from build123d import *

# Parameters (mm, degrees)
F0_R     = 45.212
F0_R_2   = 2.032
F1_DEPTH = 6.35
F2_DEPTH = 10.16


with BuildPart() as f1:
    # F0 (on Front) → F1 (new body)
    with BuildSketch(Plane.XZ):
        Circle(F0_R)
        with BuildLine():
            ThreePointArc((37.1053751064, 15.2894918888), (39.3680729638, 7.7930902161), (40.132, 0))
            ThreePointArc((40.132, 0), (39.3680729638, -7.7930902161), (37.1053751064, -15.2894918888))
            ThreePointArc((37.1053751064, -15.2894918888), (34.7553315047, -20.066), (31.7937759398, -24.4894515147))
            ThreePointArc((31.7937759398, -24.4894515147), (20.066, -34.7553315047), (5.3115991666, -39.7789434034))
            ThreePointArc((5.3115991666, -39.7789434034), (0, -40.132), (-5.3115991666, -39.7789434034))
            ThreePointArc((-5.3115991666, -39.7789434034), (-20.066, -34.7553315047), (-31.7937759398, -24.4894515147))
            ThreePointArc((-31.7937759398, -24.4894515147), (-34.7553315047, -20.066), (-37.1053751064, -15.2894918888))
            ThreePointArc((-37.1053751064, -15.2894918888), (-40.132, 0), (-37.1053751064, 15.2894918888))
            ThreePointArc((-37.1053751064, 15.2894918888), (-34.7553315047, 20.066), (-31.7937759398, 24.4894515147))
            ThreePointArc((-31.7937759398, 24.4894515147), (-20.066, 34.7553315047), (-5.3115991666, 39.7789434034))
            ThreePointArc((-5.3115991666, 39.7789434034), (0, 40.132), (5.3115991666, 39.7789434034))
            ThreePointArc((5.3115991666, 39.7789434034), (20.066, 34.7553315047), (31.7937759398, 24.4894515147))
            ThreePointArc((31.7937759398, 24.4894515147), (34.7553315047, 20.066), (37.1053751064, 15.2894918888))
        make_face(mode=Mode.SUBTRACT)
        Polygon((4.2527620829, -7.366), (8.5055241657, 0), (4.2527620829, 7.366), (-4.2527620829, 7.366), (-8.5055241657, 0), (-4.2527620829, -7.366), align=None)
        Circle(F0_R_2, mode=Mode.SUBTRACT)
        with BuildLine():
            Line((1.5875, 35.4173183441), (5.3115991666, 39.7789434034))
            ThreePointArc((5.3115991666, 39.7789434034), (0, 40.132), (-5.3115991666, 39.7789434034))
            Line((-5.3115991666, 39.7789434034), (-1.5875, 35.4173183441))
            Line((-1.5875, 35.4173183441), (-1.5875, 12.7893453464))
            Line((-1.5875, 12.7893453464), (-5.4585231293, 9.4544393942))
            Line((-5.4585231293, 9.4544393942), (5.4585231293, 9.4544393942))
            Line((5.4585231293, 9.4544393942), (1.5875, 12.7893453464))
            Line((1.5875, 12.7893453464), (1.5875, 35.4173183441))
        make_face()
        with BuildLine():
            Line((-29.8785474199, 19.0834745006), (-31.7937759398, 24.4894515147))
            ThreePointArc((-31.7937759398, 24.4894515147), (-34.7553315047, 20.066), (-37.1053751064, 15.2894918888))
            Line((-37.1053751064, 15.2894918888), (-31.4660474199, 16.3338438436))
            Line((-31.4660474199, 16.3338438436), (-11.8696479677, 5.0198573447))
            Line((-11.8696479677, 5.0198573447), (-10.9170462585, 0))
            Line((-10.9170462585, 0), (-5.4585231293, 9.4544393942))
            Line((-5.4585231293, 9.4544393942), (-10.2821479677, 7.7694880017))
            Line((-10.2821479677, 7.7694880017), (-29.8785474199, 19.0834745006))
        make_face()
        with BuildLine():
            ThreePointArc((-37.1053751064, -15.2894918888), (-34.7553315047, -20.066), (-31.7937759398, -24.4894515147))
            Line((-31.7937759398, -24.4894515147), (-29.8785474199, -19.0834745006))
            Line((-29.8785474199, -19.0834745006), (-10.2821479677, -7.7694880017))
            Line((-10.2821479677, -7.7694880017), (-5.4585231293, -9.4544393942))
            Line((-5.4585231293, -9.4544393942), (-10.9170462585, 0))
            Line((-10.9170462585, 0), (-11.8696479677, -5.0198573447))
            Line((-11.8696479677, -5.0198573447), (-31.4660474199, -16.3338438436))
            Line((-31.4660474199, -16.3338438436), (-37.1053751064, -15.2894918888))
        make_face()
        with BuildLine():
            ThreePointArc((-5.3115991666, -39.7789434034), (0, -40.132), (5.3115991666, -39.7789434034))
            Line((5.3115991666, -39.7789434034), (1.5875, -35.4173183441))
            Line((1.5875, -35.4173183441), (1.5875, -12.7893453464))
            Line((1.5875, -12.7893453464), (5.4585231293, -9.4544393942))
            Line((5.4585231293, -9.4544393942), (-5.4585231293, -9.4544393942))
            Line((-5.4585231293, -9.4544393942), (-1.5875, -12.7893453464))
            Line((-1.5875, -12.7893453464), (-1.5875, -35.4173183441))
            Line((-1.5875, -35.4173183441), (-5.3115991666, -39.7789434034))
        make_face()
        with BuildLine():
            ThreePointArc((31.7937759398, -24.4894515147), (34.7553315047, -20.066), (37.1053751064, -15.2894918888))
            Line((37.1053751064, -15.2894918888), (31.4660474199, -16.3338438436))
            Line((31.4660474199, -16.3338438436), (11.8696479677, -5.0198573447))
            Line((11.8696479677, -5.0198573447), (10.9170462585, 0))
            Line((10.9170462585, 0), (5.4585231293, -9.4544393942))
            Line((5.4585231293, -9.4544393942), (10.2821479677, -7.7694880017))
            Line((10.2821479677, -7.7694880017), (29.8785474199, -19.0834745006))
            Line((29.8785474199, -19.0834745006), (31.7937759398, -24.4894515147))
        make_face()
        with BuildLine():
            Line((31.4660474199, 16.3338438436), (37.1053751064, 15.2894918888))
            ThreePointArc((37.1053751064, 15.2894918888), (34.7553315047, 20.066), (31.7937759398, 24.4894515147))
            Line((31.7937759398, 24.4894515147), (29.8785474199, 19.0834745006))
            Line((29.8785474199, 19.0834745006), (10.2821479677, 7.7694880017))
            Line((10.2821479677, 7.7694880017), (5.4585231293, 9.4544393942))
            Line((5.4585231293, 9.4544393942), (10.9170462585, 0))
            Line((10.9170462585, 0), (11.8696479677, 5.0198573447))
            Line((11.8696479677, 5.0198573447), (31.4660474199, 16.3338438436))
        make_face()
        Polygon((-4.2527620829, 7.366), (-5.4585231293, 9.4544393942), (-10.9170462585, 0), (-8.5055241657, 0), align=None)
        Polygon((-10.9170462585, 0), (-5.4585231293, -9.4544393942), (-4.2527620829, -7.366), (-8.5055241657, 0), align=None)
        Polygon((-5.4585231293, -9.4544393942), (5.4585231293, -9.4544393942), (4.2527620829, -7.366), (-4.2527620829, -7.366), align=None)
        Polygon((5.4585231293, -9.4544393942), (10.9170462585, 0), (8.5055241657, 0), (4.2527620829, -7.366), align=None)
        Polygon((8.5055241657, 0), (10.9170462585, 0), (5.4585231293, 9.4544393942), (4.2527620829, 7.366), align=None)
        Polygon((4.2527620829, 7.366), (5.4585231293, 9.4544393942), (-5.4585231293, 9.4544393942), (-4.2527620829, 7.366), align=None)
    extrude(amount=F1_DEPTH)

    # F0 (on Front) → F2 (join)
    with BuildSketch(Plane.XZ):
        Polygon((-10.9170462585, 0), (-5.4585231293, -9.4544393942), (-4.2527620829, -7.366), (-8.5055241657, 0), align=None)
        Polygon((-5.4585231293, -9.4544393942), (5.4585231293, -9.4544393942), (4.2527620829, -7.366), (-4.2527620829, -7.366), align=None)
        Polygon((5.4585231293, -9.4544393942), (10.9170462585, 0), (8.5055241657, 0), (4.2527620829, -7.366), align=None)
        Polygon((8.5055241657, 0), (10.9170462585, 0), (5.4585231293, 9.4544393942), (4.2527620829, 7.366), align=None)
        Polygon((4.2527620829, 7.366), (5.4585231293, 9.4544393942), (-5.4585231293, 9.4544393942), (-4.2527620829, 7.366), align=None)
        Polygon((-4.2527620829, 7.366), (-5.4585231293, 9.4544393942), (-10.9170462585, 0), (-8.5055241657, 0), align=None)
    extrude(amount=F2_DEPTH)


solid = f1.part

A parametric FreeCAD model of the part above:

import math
import FreeCAD as App
import Part
import Sketcher

V = App.Vector
Q = App.Units.Quantity

doc = App.newDocument("Part")
params = doc.addObject("Spreadsheet::Sheet", "Params")
for row, (alias, value) in enumerate([
    ("sketch1_diameter", "3.56 in"),
    ("sketch1_diameter2", "0.16 in"),
    ("sketch1_radius", "1.58 in"),
    ("pad1_length", "0.25 in"),
    ("pad2_length", "0.4 in"),
], start=1):
    params.set(f"A{row}", alias)
    params.set(f"B{row}", "=" + value)
    params.setAlias(f"B{row}", alias)

body = doc.addObject("PartDesign::Body", "Body")

# Sketch on XZ plane
sketch1 = body.newObject("Sketcher::SketchObject", "Sketch")
sketch1.AttachmentSupport = (doc.getObject("XZ_Plane"), [""])
sketch1.MapMode = "FlatFace"
sketch1.addGeometry([
    Part.Circle(V(0, 0, 0), V(0, 0, 1), 45.212),  # 0
    Part.LineSegment(V(-10.282148, -7.769488, 0), V(-5.458523, -9.454439, 0)),  # 1
    Part.LineSegment(V(-5.458523, -9.454439, 0), V(-1.5875, -12.789345, 0)),  # 2
    Part.LineSegment(V(-1.5875, -12.789345, 0), V(-1.5875, -35.417318, 0)),  # 3
    Part.LineSegment(V(-1.5875, -35.417318, 0), V(-5.311599, -39.778943, 0)),  # 4
    Part.ArcOfCircle(Part.Circle(V(0, 0, 0), V(0, 0, 1), 40.132), math.radians(-142.394403), math.radians(-97.605597)),  # 5
    Part.LineSegment(V(-31.793776, -24.489452, 0), V(-29.878547, -19.083475, 0)),  # 6
    Part.LineSegment(V(-29.878547, -19.083475, 0), V(-10.282148, -7.769488, 0)),  # 7
    Part.LineSegment(V(-11.869648, 5.019857, 0), V(-10.917046, 0, 0)),  # 8
    Part.LineSegment(V(-10.917046, 0, 0), V(-11.869648, -5.019857, 0)),  # 9
    Part.LineSegment(V(-11.869648, -5.019857, 0), V(-31.466047, -16.333844, 0)),  # 10
    Part.LineSegment(V(-31.466047, -16.333844, 0), V(-37.105375, -15.289492, 0)),  # 11
    Part.ArcOfCircle(Part.Circle(V(0, 0, 0), V(0, 0, 1), 40.132), math.radians(157.605597), math.radians(202.394403)),  # 12
    Part.LineSegment(V(-37.105375, 15.289492, 0), V(-31.466047, 16.333844, 0)),  # 13
    Part.LineSegment(V(-31.466047, 16.333844, 0), V(-11.869648, 5.019857, 0)),  # 14
    Part.LineSegment(V(1.5875, -12.789345, 0), V(5.458523, -9.454439, 0)),  # 15
    Part.LineSegment(V(5.458523, -9.454439, 0), V(10.282148, -7.769488, 0)),  # 16
    Part.LineSegment(V(10.282148, -7.769488, 0), V(29.878547, -19.083475, 0)),  # 17
    Part.LineSegment(V(29.878547, -19.083475, 0), V(31.793776, -24.489452, 0)),  # 18
    Part.ArcOfCircle(Part.Circle(V(0, 0, 0), V(0, 0, 1), 40.132), math.radians(-82.394403), math.radians(-37.605597)),  # 19
    Part.LineSegment(V(5.311599, -39.778943, 0), V(1.5875, -35.417318, 0)),  # 20
    Part.LineSegment(V(1.5875, -35.417318, 0), V(1.5875, -12.789345, 0)),  # 21
    Part.Circle(V(0, 0, 0), V(0, 0, 1), 2.032),  # 22
    Part.LineSegment(V(-1.5875, 12.789345, 0), V(-5.458523, 9.454439, 0)),  # 23
    Part.LineSegment(V(-5.458523, 9.454439, 0), V(-10.282148, 7.769488, 0)),  # 24
    Part.LineSegment(V(-10.282148, 7.769488, 0), V(-29.878547, 19.083475, 0)),  # 25
    Part.LineSegment(V(-29.878547, 19.083475, 0), V(-31.793776, 24.489452, 0)),  # 26
    Part.ArcOfCircle(Part.Circle(V(0, 0, 0), V(0, 0, 1), 40.132), math.radians(97.605597), math.radians(142.394403)),  # 27
    Part.LineSegment(V(-5.311599, 39.778943, 0), V(-1.5875, 35.417318, 0)),  # 28
    Part.LineSegment(V(-1.5875, 35.417318, 0), V(-1.5875, 12.789345, 0)),  # 29
    Part.LineSegment(V(11.869648, -5.019857, 0), V(10.917046, 0, 0)),  # 30
    Part.LineSegment(V(10.917046, 0, 0), V(11.869648, 5.019857, 0)),  # 31
    Part.LineSegment(V(11.869648, 5.019857, 0), V(31.466047, 16.333844, 0)),  # 32
    Part.LineSegment(V(31.466047, 16.333844, 0), V(37.105375, 15.289492, 0)),  # 33
    Part.ArcOfCircle(Part.Circle(V(0, 0, 0), V(0, 0, 1), 40.132), math.radians(0), math.radians(22.394403)),  # 34
    Part.ArcOfCircle(Part.Circle(V(0, 0, 0), V(0, 0, 1), 40.132), math.radians(-22.394403), math.radians(0)),  # 35
    Part.LineSegment(V(37.105375, -15.289492, 0), V(31.466047, -16.333844, 0)),  # 36
    Part.LineSegment(V(31.466047, -16.333844, 0), V(11.869648, -5.019857, 0)),  # 37
    Part.LineSegment(V(10.282148, 7.769488, 0), V(5.458523, 9.454439, 0)),  # 38
    Part.LineSegment(V(5.458523, 9.454439, 0), V(1.5875, 12.789345, 0)),  # 39
    Part.LineSegment(V(1.5875, 12.789345, 0), V(1.5875, 35.417318, 0)),  # 40
    Part.LineSegment(V(1.5875, 35.417318, 0), V(5.311599, 39.778943, 0)),  # 41
    Part.ArcOfCircle(Part.Circle(V(0, 0, 0), V(0, 0, 1), 40.132), math.radians(37.605597), math.radians(82.394403)),  # 42
    Part.LineSegment(V(31.793776, 24.489452, 0), V(29.878547, 19.083475, 0)),  # 43
    Part.LineSegment(V(29.878547, 19.083475, 0), V(10.282148, 7.769488, 0)),  # 44
], False)
sketch1.addConstraint([
    Sketcher.Constraint("Coincident", 1, 2, 2, 1),
    Sketcher.Constraint("Coincident", 2, 2, 3, 1),
    Sketcher.Constraint("Coincident", 3, 2, 4, 1),
    Sketcher.Constraint("Coincident", 4, 2, 5, 2),
    Sketcher.Constraint("Coincident", 5, 1, 6, 1),
    Sketcher.Constraint("Coincident", 6, 2, 7, 1),
    Sketcher.Constraint("Coincident", 7, 2, 1, 1),
    Sketcher.Constraint("Coincident", 8, 2, 9, 1),
    Sketcher.Constraint("Coincident", 9, 2, 10, 1),
    Sketcher.Constraint("Coincident", 10, 2, 11, 1),
    Sketcher.Constraint("Coincident", 11, 2, 12, 2),
    Sketcher.Constraint("Coincident", 12, 1, 13, 1),
    Sketcher.Constraint("Coincident", 13, 2, 14, 1),
    Sketcher.Constraint("Coincident", 14, 2, 8, 1),
    Sketcher.Constraint("Coincident", 15, 2, 16, 1),
    Sketcher.Constraint("Coincident", 16, 2, 17, 1),
    Sketcher.Constraint("Coincident", 17, 2, 18, 1),
    Sketcher.Constraint("Coincident", 18, 2, 19, 2),
    Sketcher.Constraint("Coincident", 19, 1, 20, 1),
    Sketcher.Constraint("Coincident", 20, 2, 21, 1),
    Sketcher.Constraint("Coincident", 21, 2, 15, 1),
    Sketcher.Constraint("Coincident", 23, 2, 24, 1),
    Sketcher.Constraint("Coincident", 24, 2, 25, 1),
    Sketcher.Constraint("Coincident", 25, 2, 26, 1),
    Sketcher.Constraint("Coincident", 26, 2, 27, 2),
    Sketcher.Constraint("Coincident", 27, 1, 28, 1),
    Sketcher.Constraint("Coincident", 28, 2, 29, 1),
    Sketcher.Constraint("Coincident", 29, 2, 23, 1),
    Sketcher.Constraint("Coincident", 30, 2, 31, 1),
    Sketcher.Constraint("Coincident", 31, 2, 32, 1),
    Sketcher.Constraint("Coincident", 32, 2, 33, 1),
    Sketcher.Constraint("Coincident", 33, 2, 34, 2),
    Sketcher.Constraint("Tangent", 34, 1, 35, 2),
    Sketcher.Constraint("Coincident", 35, 1, 36, 1),
    Sketcher.Constraint("Coincident", 36, 2, 37, 1),
    Sketcher.Constraint("Coincident", 37, 2, 30, 1),
    Sketcher.Constraint("Coincident", 38, 2, 39, 1),
    Sketcher.Constraint("Coincident", 39, 2, 40, 1),
    Sketcher.Constraint("Coincident", 40, 2, 41, 1),
    Sketcher.Constraint("Coincident", 41, 2, 42, 2),
    Sketcher.Constraint("Coincident", 42, 1, 43, 1),
    Sketcher.Constraint("Coincident", 43, 2, 44, 1),
    Sketcher.Constraint("Coincident", 44, 2, 38, 1),
    Sketcher.Constraint("Vertical", 3),
    Sketcher.Constraint("Vertical", 21),
    Sketcher.Constraint("Vertical", 29),
    Sketcher.Constraint("Vertical", 40),
    Sketcher.Constraint("Coincident", 0, 3, -1, 1),
    Sketcher.Constraint("Coincident", 5, 3, -1, 1),
    Sketcher.Constraint("Coincident", 12, 3, -1, 1),
    Sketcher.Constraint("Coincident", 19, 3, -1, 1),
    Sketcher.Constraint("Coincident", 22, 3, -1, 1),
    Sketcher.Constraint("Coincident", 27, 3, -1, 1),
    Sketcher.Constraint("Coincident", 34, 3, -1, 1),
    Sketcher.Constraint("Coincident", 42, 3, -1, 1),
    Sketcher.Constraint("Equal", 5, 12),
    Sketcher.Constraint("Equal", 12, 19),
    Sketcher.Constraint("Equal", 19, 27),
    Sketcher.Constraint("Equal", 27, 34),
    Sketcher.Constraint("Equal", 34, 35),
    Sketcher.Constraint("Equal", 35, 42),
    Sketcher.Constraint("Symmetric", 15, 2, 23, 2, -1, 1),
    Sketcher.Constraint("Symmetric", 16, 2, 24, 2, -1, 1),
    Sketcher.Constraint("Symmetric", 17, 2, 25, 2, -1, 1),
    Sketcher.Constraint("Symmetric", 20, 2, 28, 2, -1, 1),
    Sketcher.Constraint("Symmetric", 8, 2, 30, 2, -1, 1),
    Sketcher.Constraint("Symmetric", 9, 2, 31, 2, -1, 1),
    Sketcher.Constraint("Symmetric", 10, 2, 32, 2, -1, 1),
    Sketcher.Constraint("Symmetric", 13, 2, 36, 2, -1, 1),
    Sketcher.Constraint("Symmetric", 14, 2, 37, 2, -1, 1),
    Sketcher.Constraint("Symmetric", 1, 2, 38, 2, -1, 1),
    Sketcher.Constraint("Symmetric", 2, 2, 39, 2, -1, 1),
    Sketcher.Constraint("Symmetric", 6, 2, 43, 2, -1, 1),
    Sketcher.Constraint("Symmetric", 7, 2, 44, 2, -1, 1),
    Sketcher.Constraint("Symmetric", 1, 2, 15, 2, -2),
    Sketcher.Constraint("Symmetric", 7, 2, 16, 2, -2),
    Sketcher.Constraint("Symmetric", 6, 2, 17, 2, -2),
    Sketcher.Constraint("Symmetric", 3, 2, 20, 2, -2),
    Sketcher.Constraint("Symmetric", 14, 2, 31, 2, -2),
    Sketcher.Constraint("Symmetric", 13, 2, 32, 2, -2),
    Sketcher.Constraint("PointOnObject", 8, 2, -1),
    Sketcher.Constraint("PointOnObject", 34, 1, -1),
    Sketcher.Constraint("Parallel", 7, 10),
    Sketcher.Constraint("Parallel", 15, 23),
    Sketcher.Constraint("Parallel", 18, 26),
    Sketcher.Constraint("Parallel", 20, 28),
    Sketcher.Constraint("Parallel", 11, 33),
    Sketcher.Constraint("Parallel", 13, 36),
    Sketcher.Constraint("Parallel", 4, 41),
    Sketcher.Constraint("Parallel", 6, 43),
    Sketcher.Constraint("Horizontal", 5, 1, 18, 2),
    Sketcher.Constraint("Horizontal", 4, 2, 19, 1),
    Sketcher.Constraint("Horizontal", 2, 2, 21, 2),
    Sketcher.Constraint("Horizontal", 12, 1, 33, 2),
    Sketcher.Constraint("Horizontal", 28, 2, 40, 2),
    Sketcher.Constraint("Equal", 1, 2),
    Sketcher.Constraint("Equal", 4, 6),
    Sketcher.Constraint("Equal", 2, 8),
    Sketcher.Constraint("Equal", 7, 10),
    Sketcher.Constraint("Equal", 6, 11),
    Sketcher.Constraint("Diameter", 0, Q("3.56 in")),
    Sketcher.Constraint("Diameter", 22, Q("0.16 in")),
    Sketcher.Constraint("Radius", 5, Q("1.58 in")),
    Sketcher.Constraint("Angle", 7, Q("30 deg")),
    Sketcher.Constraint("DistanceX", 2, 2, -1, 1, Q("0.0625 in")),
    Sketcher.Constraint("DistanceX", 9, 2, 7, 2, Q("0.0625 in")),
    Sketcher.Constraint("DistanceY", 4, 2, -1, 1, Q("1.5661001 in")),
    Sketcher.Constraint("DistanceY", 4, 2, 2, 2, 26.989598),
    Sketcher.Constraint("DistanceX", 8, 2, 7, 2, 0.634898),
    Sketcher.Constraint("DistanceX", 10, 2, 9, 2, 19.596399),
    Sketcher.Constraint("DistanceX", 11, 2, 5, 1, 5.311599),
    Sketcher.Constraint("DistanceY", 9, 2, 13, 2, 21.353701),
    Sketcher.Constraint("DistanceY", 3, 2, 3, 1, 22.627973),
    Sketcher.Constraint("DistanceY", 1, 2, -1, 1, 9.454439),
])
sketch1.setExpression("Constraints[100]", "Params.sketch1_diameter")
sketch1.setExpression("Constraints[101]", "Params.sketch1_diameter2")
sketch1.setExpression("Constraints[102]", "Params.sketch1_radius")
pad1 = body.newObject("PartDesign::Pad", "Pad")
pad1.Profile = sketch1
pad1.setExpression("Length", "Params.pad1_length")

# Sketch on XZ plane
sketch2 = body.newObject("Sketcher::SketchObject", "Sketch001")
sketch2.AttachmentSupport = (doc.getObject("XZ_Plane"), [""])
sketch2.MapMode = "FlatFace"
sketch2.addGeometry([
    Part.LineSegment(V(-10.917046, 0, 0), V(-5.458523, -9.454439, 0)),  # 0
    Part.LineSegment(V(-5.458523, -9.454439, 0), V(5.458523, -9.454439, 0)),  # 1
    Part.LineSegment(V(5.458523, -9.454439, 0), V(10.917046, 0, 0)),  # 2
    Part.LineSegment(V(10.917046, 0, 0), V(5.458523, 9.454439, 0)),  # 3
    Part.LineSegment(V(5.458523, 9.454439, 0), V(-5.458523, 9.454439, 0)),  # 4
    Part.LineSegment(V(-5.458523, 9.454439, 0), V(-10.917046, 0, 0)),  # 5
    Part.LineSegment(V(-4.252762, 7.366, 0), V(4.252762, 7.366, 0)),  # 6
    Part.LineSegment(V(4.252762, 7.366, 0), V(8.505524, 0, 0)),  # 7
    Part.LineSegment(V(8.505524, 0, 0), V(4.252762, -7.366, 0)),  # 8
    Part.LineSegment(V(4.252762, -7.366, 0), V(-4.252762, -7.366, 0)),  # 9
    Part.LineSegment(V(-4.252762, -7.366, 0), V(-8.505524, 0, 0)),  # 10
    Part.LineSegment(V(-8.505524, 0, 0), V(-4.252762, 7.366, 0)),  # 11
], False)
sketch2.addConstraint([
    Sketcher.Constraint("Coincident", 0, 2, 1, 1),
    Sketcher.Constraint("Coincident", 1, 2, 2, 1),
    Sketcher.Constraint("Coincident", 2, 2, 3, 1),
    Sketcher.Constraint("Coincident", 3, 2, 4, 1),
    Sketcher.Constraint("Coincident", 4, 2, 5, 1),
    Sketcher.Constraint("Coincident", 5, 2, 0, 1),
    Sketcher.Constraint("Coincident", 6, 2, 7, 1),
    Sketcher.Constraint("Coincident", 7, 2, 8, 1),
    Sketcher.Constraint("Coincident", 8, 2, 9, 1),
    Sketcher.Constraint("Coincident", 9, 2, 10, 1),
    Sketcher.Constraint("Coincident", 10, 2, 11, 1),
    Sketcher.Constraint("Coincident", 11, 2, 6, 1),
    Sketcher.Constraint("Horizontal", 1),
    Sketcher.Constraint("Horizontal", 4),
    Sketcher.Constraint("Horizontal", 6),
    Sketcher.Constraint("Horizontal", 9),
    Sketcher.Constraint("Symmetric", 0, 2, 3, 2, -1, 1),
    Sketcher.Constraint("Symmetric", 2, 2, 5, 2, -1, 1),
    Sketcher.Constraint("Symmetric", 6, 2, 9, 2, -1, 1),
    Sketcher.Constraint("Symmetric", 7, 2, 10, 2, -1, 1),
    Sketcher.Constraint("PointOnObject", 2, 2, -1),
    Sketcher.Constraint("PointOnObject", 7, 2, -1),
    Sketcher.Constraint("Parallel", 2, 5),
    Sketcher.Constraint("Parallel", 3, 7),
    Sketcher.Constraint("Parallel", 5, 8),
    Sketcher.Constraint("Parallel", 8, 11),
    Sketcher.Constraint("Vertical", 1, 2, 3, 2),
    Sketcher.Constraint("Angle", 0, Q("-60 deg")),
    Sketcher.Constraint("DistanceY", -1, 1, 6, 2, Q("0.29 in")),
    Sketcher.Constraint("DistanceX", 1, 2, 7, 2, 3.047001),
    Sketcher.Constraint("DistanceX", 1, 1, 1, 2, 10.917046),
    Sketcher.Constraint("DistanceY", 0, 2, -1, 1, 9.454439),
])
pad2 = body.newObject("PartDesign::Pad", "Pad001")
pad2.Profile = sketch2
pad2.setExpression("Length", "Params.pad2_length")

doc.recompute()
